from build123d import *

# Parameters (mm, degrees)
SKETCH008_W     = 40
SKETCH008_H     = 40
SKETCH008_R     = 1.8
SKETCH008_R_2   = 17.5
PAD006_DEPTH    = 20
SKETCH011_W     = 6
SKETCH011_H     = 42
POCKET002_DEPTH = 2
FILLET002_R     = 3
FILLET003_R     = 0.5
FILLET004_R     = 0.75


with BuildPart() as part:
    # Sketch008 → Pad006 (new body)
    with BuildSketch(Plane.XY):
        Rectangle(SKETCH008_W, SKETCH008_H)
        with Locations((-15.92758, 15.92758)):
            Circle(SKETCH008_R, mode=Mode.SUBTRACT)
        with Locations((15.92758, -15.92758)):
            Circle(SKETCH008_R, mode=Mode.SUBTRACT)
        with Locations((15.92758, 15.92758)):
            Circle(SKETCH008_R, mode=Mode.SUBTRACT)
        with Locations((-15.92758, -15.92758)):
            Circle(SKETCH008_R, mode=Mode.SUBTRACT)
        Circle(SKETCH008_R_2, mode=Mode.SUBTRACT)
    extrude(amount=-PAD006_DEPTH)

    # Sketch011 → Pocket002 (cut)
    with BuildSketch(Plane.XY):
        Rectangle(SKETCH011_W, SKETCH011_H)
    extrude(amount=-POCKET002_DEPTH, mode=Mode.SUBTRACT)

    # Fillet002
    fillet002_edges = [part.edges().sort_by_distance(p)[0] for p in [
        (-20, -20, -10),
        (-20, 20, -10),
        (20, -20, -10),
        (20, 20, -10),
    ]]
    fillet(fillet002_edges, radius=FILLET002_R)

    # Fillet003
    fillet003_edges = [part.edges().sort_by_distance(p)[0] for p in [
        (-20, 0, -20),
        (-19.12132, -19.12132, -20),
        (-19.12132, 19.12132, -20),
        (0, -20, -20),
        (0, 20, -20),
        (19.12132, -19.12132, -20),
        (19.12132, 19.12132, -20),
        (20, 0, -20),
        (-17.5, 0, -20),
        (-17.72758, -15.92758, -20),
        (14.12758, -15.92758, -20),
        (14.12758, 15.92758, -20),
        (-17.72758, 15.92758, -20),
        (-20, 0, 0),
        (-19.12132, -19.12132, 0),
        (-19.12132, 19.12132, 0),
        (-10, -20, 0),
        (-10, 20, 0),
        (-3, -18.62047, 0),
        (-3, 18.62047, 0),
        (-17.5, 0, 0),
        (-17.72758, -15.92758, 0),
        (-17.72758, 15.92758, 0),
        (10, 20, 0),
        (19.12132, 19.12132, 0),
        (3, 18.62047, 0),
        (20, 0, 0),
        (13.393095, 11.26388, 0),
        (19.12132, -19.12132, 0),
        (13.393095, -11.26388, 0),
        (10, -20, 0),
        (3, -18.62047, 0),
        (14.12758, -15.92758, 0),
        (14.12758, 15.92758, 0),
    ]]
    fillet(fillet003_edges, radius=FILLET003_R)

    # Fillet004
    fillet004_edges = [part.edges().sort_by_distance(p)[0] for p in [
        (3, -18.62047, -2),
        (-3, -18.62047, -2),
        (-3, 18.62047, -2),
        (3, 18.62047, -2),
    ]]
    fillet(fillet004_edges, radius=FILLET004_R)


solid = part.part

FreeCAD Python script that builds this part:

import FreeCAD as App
import Part
import Sketcher

V = App.Vector


def edges_at(feature, points):
    """Names of the edges that pass closest to the given points."""
    edges = feature.Shape.Edges
    near = lambda p: min(range(len(edges)), key=lambda i: edges[i].distToShape(Part.Vertex(*p))[0])
    return sorted({f"Edge{near(p) + 1}" for p in points})


def add_polygon(sketch, points):
    """Adds a closed chain of lines whose ends are joined by coincident constraints."""
    first, n = sketch.GeometryCount, len(points)
    for a, b in zip(points, points[1:] + points[:1]):
        sketch.addGeometry(Part.LineSegment(App.Vector(*a, 0), App.Vector(*b, 0)), False)
    for i in range(n):
        sketch.addConstraint(Sketcher.Constraint("Coincident", first + i, 2, first + (i + 1) % n, 1))

doc = App.newDocument("Part")
body = doc.addObject("PartDesign::Body", "Body")

# Sketch on XY plane
sketch1 = body.newObject("Sketcher::SketchObject", "Sketch")
sketch1.AttachmentSupport = (doc.getObject("XY_Plane"), [""])
sketch1.MapMode = "FlatFace"
add_polygon(sketch1, [(-20, 20), (-20, -20), (20, -20), (20, 20)])  # lines 0-3
sketch1.addGeometry(Part.Circle(V(-15.9, -15.9, 0), V(0, 0, 1), 1.8), False)  # 4
sketch1.addGeometry(Part.Circle(V(15.9, -15.9, 0), V(0, 0, 1), 1.8), False)  # 5
sketch1.addGeometry(Part.Circle(V(-15.9, 15.9, 0), V(0, 0, 1), 1.8), False)  # 6
sketch1.addGeometry(Part.Circle(V(0, 0, 0), V(0, 0, 1), 17.5), False)  # 7
sketch1.addGeometry(Part.Circle(V(15.9, 15.9, 0), V(0, 0, 1), 1.8), False)  # 8
sketch1.addConstraint(Sketcher.Constraint("Vertical", 0))
sketch1.addConstraint(Sketcher.Constraint("Horizontal", 1))
sketch1.addConstraint(Sketcher.Constraint("Vertical", 2))
sketch1.addConstraint(Sketcher.Constraint("Horizontal", 3))
sketch1.addConstraint(Sketcher.Constraint("Coincident", 7, 3, -1, 1))
sketch1.addConstraint(Sketcher.Constraint("Equal", 4, 5))
sketch1.addConstraint(Sketcher.Constraint("Equal", 5, 6))
sketch1.addConstraint(Sketcher.Constraint("Equal", 6, 8))
sketch1.addConstraint(Sketcher.Constraint("Symmetric", 5, 3, 6, 3, -1, 1))
sketch1.addConstraint(Sketcher.Constraint("Symmetric", 4, 3, 8, 3, -1, 1))
sketch1.addConstraint(Sketcher.Constraint("Symmetric", 0, 2, 2, 2, -1, 1))
sketch1.addConstraint(Sketcher.Constraint("Symmetric", 4, 3, 5, 3, -2))
sketch1.addConstraint(Sketcher.Constraint("Equal", 3, 0))
sketch1.addConstraint(Sketcher.Constraint("Diameter", 7, 35.0))
sketch1.addConstraint(Sketcher.Constraint("Diameter", 4, 3.6))
sketch1.addConstraint(Sketcher.Constraint("DistanceX", 1, 1, 1, 2, 40.0))
sketch1.addConstraint(Sketcher.Constraint("DistanceX", 4, 3, -1, 1, 15.92758))
sketch1.addConstraint(Sketcher.Constraint("DistanceY", 4, 3, -1, 1, 15.92758))
pad1 = body.newObject("PartDesign::Pad", "Pad")
pad1.Profile = sketch1
pad1.Length = 20
pad1.Reversed = True

# Sketch on XY plane
sketch2 = body.newObject("Sketcher::SketchObject", "Sketch001")
sketch2.AttachmentSupport = (doc.getObject("XY_Plane"), [""])
sketch2.MapMode = "FlatFace"
add_polygon(sketch2, [(-3, 21), (-3, -21), (3, -21), (3, 21)])  # lines 0-3
sketch2.addConstraint(Sketcher.Constraint("Vertical", 0))
sketch2.addConstraint(Sketcher.Constraint("Horizontal", 1))
sketch2.addConstraint(Sketcher.Constraint("Vertical", 2))
sketch2.addConstraint(Sketcher.Constraint("Horizontal", 3))
sketch2.addConstraint(Sketcher.Constraint("Symmetric", 0, 2, 2, 2, -1, 1))
sketch2.addConstraint(Sketcher.Constraint("DistanceX", 1, 1, 1, 2, 6.0))
sketch2.addConstraint(Sketcher.Constraint("DistanceY", 0, 2, 0, 1, 42.0))
pocket1 = body.newObject("PartDesign::Pocket", "Pocket")
pocket1.Profile = sketch2
pocket1.Length = 2
doc.recompute()

fillet = body.newObject("PartDesign::Fillet", "Fillet")
fillet.Base = (pocket1, edges_at(pocket1, [
    (-20, -20, -10),
    (-20, 20, -10),
    (20, -20, -10),
    (20, 20, -10),
]))
fillet.Radius = 3
doc.recompute()

fillet2 = body.newObject("PartDesign::Fillet", "Fillet001")
fillet2.Base = (fillet, edges_at(fillet, [
    (-20, 0, -20),
    (-19.121, -19.121, -20),
    (-19.121, 19.121, -20),
    (0, -20, -20),
    (0, 20, -20),
    (19.121, -19.121, -20),
    (19.121, 19.121, -20),
    (20, 0, -20),
    (-17.5, 0, -20),
    (-17.728, -15.928, -20),
    (14.128, -15.928, -20),
    (14.128, 15.928, -20),
    (-17.728, 15.928, -20),
    (-20, 0, 0),
    (-19.121, -19.121, 0),
    (-19.121, 19.121, 0),
    (-10, -20, 0),
    (-10, 20, 0),
    (-3, -18.62, 0),
    (-3, 18.62, 0),
    (-17.5, 0, 0),
    (-17.728, -15.928, 0),
    (-17.728, 15.928, 0),
    (10, 20, 0),
    (19.121, 19.121, 0),
    (3, 18.62, 0),
    (20, 0, 0),
    (13.393, 11.264, 0),
    (19.121, -19.121, 0),
    (13.393, -11.264, 0),
    (10, -20, 0),
    (3, -18.62, 0),
    (14.128, -15.928, 0),
    (14.128, 15.928, 0),
]))
fillet2.Radius = 0.5
doc.recompute()

fillet3 = body.newObject("PartDesign::Fillet", "Fillet002")
fillet3.Base = (fillet2, edges_at(fillet2, [
    (3, -18.62, -2),
    (-3, -18.62, -2),
    (-3, 18.62, -2),
    (3, 18.62, -2),
]))
fillet3.Radius = 0.75

doc.recompute()
